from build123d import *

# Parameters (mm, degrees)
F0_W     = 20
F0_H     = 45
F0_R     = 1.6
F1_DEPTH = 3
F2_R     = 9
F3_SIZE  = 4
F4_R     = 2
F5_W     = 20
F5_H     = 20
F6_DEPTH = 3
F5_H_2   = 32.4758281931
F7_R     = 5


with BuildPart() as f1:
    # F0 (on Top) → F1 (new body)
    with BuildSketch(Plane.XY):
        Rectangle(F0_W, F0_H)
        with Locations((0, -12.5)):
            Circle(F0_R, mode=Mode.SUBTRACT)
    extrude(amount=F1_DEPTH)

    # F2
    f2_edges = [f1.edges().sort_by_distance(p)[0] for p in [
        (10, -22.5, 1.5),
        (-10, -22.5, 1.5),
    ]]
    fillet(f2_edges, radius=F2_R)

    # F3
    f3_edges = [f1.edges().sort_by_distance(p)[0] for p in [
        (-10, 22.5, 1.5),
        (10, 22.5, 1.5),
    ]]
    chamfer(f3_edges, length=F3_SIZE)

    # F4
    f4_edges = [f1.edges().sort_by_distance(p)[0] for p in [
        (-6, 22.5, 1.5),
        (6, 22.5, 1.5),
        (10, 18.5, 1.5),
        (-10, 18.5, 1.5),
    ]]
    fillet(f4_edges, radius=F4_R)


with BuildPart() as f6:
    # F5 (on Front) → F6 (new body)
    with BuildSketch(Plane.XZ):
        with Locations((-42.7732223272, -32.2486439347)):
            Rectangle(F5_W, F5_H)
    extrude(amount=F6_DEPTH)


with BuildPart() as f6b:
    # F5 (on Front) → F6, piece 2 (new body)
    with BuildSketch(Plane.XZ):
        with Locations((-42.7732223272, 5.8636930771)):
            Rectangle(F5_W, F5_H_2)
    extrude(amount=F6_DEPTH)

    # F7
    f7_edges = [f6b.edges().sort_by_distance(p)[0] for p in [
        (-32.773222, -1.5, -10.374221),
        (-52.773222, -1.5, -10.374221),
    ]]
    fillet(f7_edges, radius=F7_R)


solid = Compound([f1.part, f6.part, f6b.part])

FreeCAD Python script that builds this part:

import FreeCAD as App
import Part
import Sketcher

V = App.Vector
Q = App.Units.Quantity


def edges_at(feature, points):
    """Names of the edges that pass closest to the given points."""
    edges = feature.Shape.Edges
    near = lambda p: min(range(len(edges)), key=lambda i: edges[i].distToShape(Part.Vertex(*p))[0])
    return sorted({f"Edge{near(p) + 1}" for p in points})


def add_polygon(sketch, points):
    """Adds a closed chain of lines whose ends are joined by coincident constraints."""
    first, n = sketch.GeometryCount, len(points)
    for a, b in zip(points, points[1:] + points[:1]):
        sketch.addGeometry(Part.LineSegment(App.Vector(*a, 0), App.Vector(*b, 0)), False)
    for i in range(n):
        sketch.addConstraint(Sketcher.Constraint("Coincident", first + i, 2, first + (i + 1) % n, 1))

doc = App.newDocument("Part")
body = doc.addObject("PartDesign::Body", "Body")

sketch1 = body.newObject("Sketcher::SketchObject", "Sketch")
sketch1.AttachmentSupport = (doc.getObject("XY_Plane"), [""])
sketch1.MapMode = "FlatFace"
add_polygon(sketch1, [(-10, 22.5), (-10, -22.5), (10, -22.5), (10, 22.5)])
sketch1.addGeometry(Part.Circle(V(0, -12.5, 0), V(0, 0, 1), 1.6), False)
sketch1.addConstraint(Sketcher.Constraint("Vertical", 0))
sketch1.addConstraint(Sketcher.Constraint("Horizontal", 1))
sketch1.addConstraint(Sketcher.Constraint("Vertical", 2))
sketch1.addConstraint(Sketcher.Constraint("Horizontal", 3))
sketch1.addConstraint(Sketcher.Constraint("Symmetric", 0, 2, 2, 2, -1, 1))
sketch1.addConstraint(Sketcher.Constraint("PointOnObject", 4, 3, -2))
sketch1.addConstraint(Sketcher.Constraint("Diameter", 4, Q("3.2 mm")))
sketch1.addConstraint(Sketcher.Constraint("DistanceX", 1, 1, 1, 2, Q("20 mm")))
sketch1.addConstraint(Sketcher.Constraint("DistanceY", 0, 2, 0, 1, Q("45 mm")))
sketch1.addConstraint(Sketcher.Constraint("DistanceY", 0, 2, 4, 3, Q("10 mm")))
pad1 = body.newObject("PartDesign::Pad", "Pad")
pad1.Profile = sketch1
pad1.Length = 3
doc.recompute()

fillet = body.newObject("PartDesign::Fillet", "Fillet")
fillet.Base = (pad1, edges_at(pad1, [(10, -22.5, 1.5), (-10, -22.5, 1.5)]))
fillet.Radius = 9
doc.recompute()

chamfer = body.newObject("PartDesign::Chamfer", "Chamfer")
chamfer.Base = (fillet, edges_at(fillet, [(-10, 22.5, 1.5), (10, 22.5, 1.5)]))
chamfer.Size = 4
doc.recompute()

fillet2 = body.newObject("PartDesign::Fillet", "Fillet001")
fillet2.Base = (chamfer, edges_at(chamfer, [
    (-6, 22.5, 1.5),
    (6, 22.5, 1.5),
    (10, 18.5, 1.5),
    (-10, 18.5, 1.5),
]))
fillet2.Radius = 2
body2 = doc.addObject("PartDesign::Body", "Body001")

sketch2 = body2.newObject("Sketcher::SketchObject", "Sketch001")
sketch2.AttachmentSupport = (doc.getObject("XZ_Plane001"), [""])
sketch2.MapMode = "FlatFace"
add_polygon(sketch2, [(-52.773222, -22.248644), (-52.773222, -42.248644), (-32.773222, -42.248644), (-32.773222, -22.248644)])
sketch2.addConstraint(Sketcher.Constraint("Vertical", 0))
sketch2.addConstraint(Sketcher.Constraint("Horizontal", 1))
sketch2.addConstraint(Sketcher.Constraint("Vertical", 2))
sketch2.addConstraint(Sketcher.Constraint("Horizontal", 3))
sketch2.addConstraint(Sketcher.Constraint("Equal", 3, 0))
sketch2.addConstraint(Sketcher.Constraint("DistanceX", 1, 1, 1, 2, Q("20 mm")))
sketch2.addConstraint(Sketcher.Constraint("DistanceX", 0, 2, -1, 1, Q("52.773222 mm")))
sketch2.addConstraint(Sketcher.Constraint("DistanceY", 0, 2, -1, 1, Q("42.248644 mm")))
pad2 = body2.newObject("PartDesign::Pad", "Pad001")
pad2.Profile = sketch2
pad2.Length = 3
body3 = doc.addObject("PartDesign::Body", "Body002")

sketch3 = body3.newObject("Sketcher::SketchObject", "Sketch002")
sketch3.AttachmentSupport = (doc.getObject("XZ_Plane002"), [""])
sketch3.MapMode = "FlatFace"
add_polygon(sketch3, [(-52.773222, 22.101607), (-52.773222, -10.374221), (-32.773222, -10.374221), (-32.773222, 22.101607)])
sketch3.addConstraint(Sketcher.Constraint("Vertical", 0))
sketch3.addConstraint(Sketcher.Constraint("Horizontal", 1))
sketch3.addConstraint(Sketcher.Constraint("Vertical", 2))
sketch3.addConstraint(Sketcher.Constraint("Horizontal", 3))
sketch3.addConstraint(Sketcher.Constraint("DistanceX", 1, 1, 1, 2, Q("20 mm")))
sketch3.addConstraint(Sketcher.Constraint("DistanceY", 0, 2, 0, 1, Q("32.475828 mm")))
sketch3.addConstraint(Sketcher.Constraint("DistanceY", 0, 2, -1, 1, Q("10.374221 mm")))
sketch3.addConstraint(Sketcher.Constraint("DistanceX", 0, 2, -1, 1, Q("52.773222 mm")))
pad3 = body3.newObject("PartDesign::Pad", "Pad002")
pad3.Profile = sketch3
pad3.Length = 3
doc.recompute()

fillet3 = body3.newObject("PartDesign::Fillet", "Fillet002")
fillet3.Base = (pad3, edges_at(pad3, [(-32.773, -1.5, -10.374), (-52.773, -1.5, -10.374)]))
fillet3.Radius = 5

doc.recompute()
